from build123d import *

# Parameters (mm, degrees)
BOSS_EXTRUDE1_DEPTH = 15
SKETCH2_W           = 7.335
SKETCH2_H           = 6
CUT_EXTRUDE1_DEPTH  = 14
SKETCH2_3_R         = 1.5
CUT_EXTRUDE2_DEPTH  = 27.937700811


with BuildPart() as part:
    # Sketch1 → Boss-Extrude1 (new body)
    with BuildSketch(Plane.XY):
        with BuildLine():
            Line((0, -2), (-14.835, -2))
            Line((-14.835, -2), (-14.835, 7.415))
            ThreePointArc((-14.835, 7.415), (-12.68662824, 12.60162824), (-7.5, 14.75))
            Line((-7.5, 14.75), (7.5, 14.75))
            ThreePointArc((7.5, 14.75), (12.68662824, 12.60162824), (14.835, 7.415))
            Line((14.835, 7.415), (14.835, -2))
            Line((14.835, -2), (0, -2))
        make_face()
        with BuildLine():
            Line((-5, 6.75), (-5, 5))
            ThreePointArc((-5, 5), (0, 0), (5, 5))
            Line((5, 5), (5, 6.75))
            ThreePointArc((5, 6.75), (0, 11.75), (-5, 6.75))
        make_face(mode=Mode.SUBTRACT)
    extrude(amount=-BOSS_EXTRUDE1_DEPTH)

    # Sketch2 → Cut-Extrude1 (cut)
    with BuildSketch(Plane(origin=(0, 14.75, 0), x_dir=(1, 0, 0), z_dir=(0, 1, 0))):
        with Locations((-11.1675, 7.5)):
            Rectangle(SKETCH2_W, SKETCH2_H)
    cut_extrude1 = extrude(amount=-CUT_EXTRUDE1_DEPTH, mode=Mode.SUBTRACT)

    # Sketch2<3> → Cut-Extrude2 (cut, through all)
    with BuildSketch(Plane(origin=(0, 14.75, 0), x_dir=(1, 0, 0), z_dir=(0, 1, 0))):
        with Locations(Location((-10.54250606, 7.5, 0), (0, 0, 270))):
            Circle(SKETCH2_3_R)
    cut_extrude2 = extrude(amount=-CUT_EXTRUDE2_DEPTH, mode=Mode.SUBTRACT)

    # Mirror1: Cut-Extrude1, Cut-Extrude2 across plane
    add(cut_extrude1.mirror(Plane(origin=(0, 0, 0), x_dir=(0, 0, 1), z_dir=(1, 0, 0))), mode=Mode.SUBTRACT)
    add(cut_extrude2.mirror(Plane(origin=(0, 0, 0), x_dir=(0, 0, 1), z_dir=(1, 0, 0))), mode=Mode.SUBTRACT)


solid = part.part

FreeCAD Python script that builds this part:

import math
import FreeCAD as App
import Part
import Sketcher
from FreeCAD import Vector
Q = App.Units.Quantity


def add_polygon(sketch, points):
    """Adds a closed chain of lines whose ends are joined by coincident constraints."""
    first, n = sketch.GeometryCount, len(points)
    for a, b in zip(points, points[1:] + points[:1]):
        sketch.addGeometry(Part.LineSegment(App.Vector(*a, 0), App.Vector(*b, 0)), False)
    for i in range(n):
        sketch.addConstraint(Sketcher.Constraint("Coincident", first + i, 2, first + (i + 1) % n, 1))

doc = App.newDocument("Part")
body = doc.addObject("PartDesign::Body", "Body")

# Sketch on XY plane
sketch1 = doc.addObject("Sketcher::SketchObject", "Sketch")
body.addObject(sketch1)
sketch1.AttachmentSupport = (doc.XY_Plane, [""])
sketch1.MapMode = "FlatFace"
sketch1.addGeometry([
    Part.LineSegment(Vector(-14.835, 7.415, 0), Vector(-14.835, -2, 0)),  # 0
    Part.LineSegment(Vector(-14.835, -2, 0), Vector(14.835, -2, 0)),  # 1
    Part.LineSegment(Vector(14.835, -2, 0), Vector(14.835, 7.415, 0)),  # 2
    Part.ArcOfCircle(Part.Circle(Vector(7.5, 7.415, 0), Vector(0, 0, 1), 7.335), math.radians(0), math.radians(90)),  # 3
    Part.LineSegment(Vector(7.5, 14.75, 0), Vector(-7.5, 14.75, 0)),  # 4
    Part.ArcOfCircle(Part.Circle(Vector(-7.5, 7.415, 0), Vector(0, 0, 1), 7.335), math.radians(90), math.radians(180)),  # 5
    Part.ArcOfCircle(Part.Circle(Vector(0, 6.75, 0), Vector(0, 0, 1), 5), math.radians(0), math.radians(180)),  # 6
    Part.LineSegment(Vector(5, 6.75, 0), Vector(5, 5, 0)),  # 7
    Part.ArcOfCircle(Part.Circle(Vector(0, 5, 0), Vector(0, 0, 1), 5), math.radians(180), math.radians(360)),  # 8
    Part.LineSegment(Vector(-5, 5, 0), Vector(-5, 6.75, 0)),  # 9
], False)
sketch1.addConstraint([
    Sketcher.Constraint("Coincident", 0, 2, 1, 1),
    Sketcher.Constraint("Coincident", 1, 2, 2, 1),
    Sketcher.Constraint("Tangent", 2, 2, 3, 1),
    Sketcher.Constraint("Tangent", 3, 2, 4, 1),
    Sketcher.Constraint("Tangent", 4, 2, 5, 1),
    Sketcher.Constraint("Tangent", 5, 2, 0, 1),
    Sketcher.Constraint("Tangent", 6, 1, 7, 1),
    Sketcher.Constraint("Tangent", 7, 2, 8, 2),
    Sketcher.Constraint("Tangent", 8, 1, 9, 1),
    Sketcher.Constraint("Tangent", 9, 2, 6, 2),
    Sketcher.Constraint("Vertical", 0),
    Sketcher.Constraint("Horizontal", 1),
    Sketcher.Constraint("Vertical", 2),
    Sketcher.Constraint("Horizontal", 4),
    Sketcher.Constraint("Vertical", 7),
    Sketcher.Constraint("Vertical", 9),
    Sketcher.Constraint("Equal", 3, 5),
    Sketcher.Constraint("PointOnObject", 6, 3, -2),
    Sketcher.Constraint("Radius", 6, Q("5 mm")),
    Sketcher.Constraint("DistanceX", 4, 2, 4, 1, Q("15 mm")),
    Sketcher.Constraint("DistanceY", -1, 1, 8, 3, Q("5 mm")),
    Sketcher.Constraint("DistanceY", 0, 2, -1, 1, Q("2 mm")),
    Sketcher.Constraint("Radius", 3, Q("7.335 mm")),
    Sketcher.Constraint("DistanceY", 6, 3, 3, 2, Q("8 mm")),
    Sketcher.Constraint("DistanceY", 7, 2, 7, 1, Q("1.75 mm")),
    Sketcher.Constraint("DistanceX", -1, 1, 3, 3, Q("7.5 mm")),
])
pad1 = doc.addObject("PartDesign::Pad", "Pad")
body.addObject(pad1)
pad1.Profile = sketch1
pad1.Length = 15
pad1.Reversed = True

# Sketch on XZ plane
sketch2 = doc.addObject("Sketcher::SketchObject", "Sketch001")
body.addObject(sketch2)
sketch2.AttachmentSupport = (doc.XZ_Plane, [""])
sketch2.MapMode = "FlatFace"
sketch2.AttachmentOffset = App.Placement(Vector(0, 0, -14.75), App.Rotation())
add_polygon(sketch2, [(-14.835, -10.5), (-14.835, -4.5), (-7.5, -4.5), (-7.5, -10.5)])  # lines 0-3
sketch2.addConstraint([
    Sketcher.Constraint("Vertical", 0),
    Sketcher.Constraint("Horizontal", 1),
    Sketcher.Constraint("Vertical", 2),
    Sketcher.Constraint("Horizontal", 3),
    Sketcher.Constraint("DistanceY", 0, 1, 0, 2, Q("6 mm")),
    Sketcher.Constraint("DistanceY", 0, 2, -1, 1, Q("4.5 mm")),
    Sketcher.Constraint("DistanceX", 1, 2, -1, 1, Q("7.5 mm")),
    Sketcher.Constraint("DistanceX", 1, 1, 1, 2, Q("7.335 mm")),
])
pocket1 = doc.addObject("PartDesign::Pocket", "Pocket")
body.addObject(pocket1)
pocket1.Profile = sketch2
pocket1.Length = 14
pocket1.Reversed = True

# Sketch on XZ plane
sketch3 = doc.addObject("Sketcher::SketchObject", "Sketch002")
body.addObject(sketch3)
sketch3.AttachmentSupport = (doc.XZ_Plane, [""])
sketch3.MapMode = "FlatFace"
sketch3.AttachmentOffset = App.Placement(Vector(0, 0, -14.75), App.Rotation())
sketch3.addGeometry(Part.Circle(Vector(-10.542506, -7.5, 0), Vector(0, 0, 1), 1.5), False)
sketch3.addConstraint([
    Sketcher.Constraint("Diameter", 0, Q("3 mm")),
    Sketcher.Constraint("DistanceY", 0, 3, -1, 1, Q("7.5 mm")),
    Sketcher.Constraint("DistanceX", 0, 3, -1, 1, Q("10.542506 mm")),
])
pocket2 = doc.addObject("PartDesign::Pocket", "Pocket001")
body.addObject(pocket2)
pocket2.Profile = sketch3
pocket2.Type = "ThroughAll"
pocket2.Reversed = True
doc.recompute()

mirrored = doc.addObject("PartDesign::Mirrored", "Mirrored")
body.addObject(mirrored)
mirrored.Originals = [pocket1, pocket2]
mirrored.MirrorPlane = (doc.YZ_Plane, [""])
body.Tip = mirrored

doc.recompute()
